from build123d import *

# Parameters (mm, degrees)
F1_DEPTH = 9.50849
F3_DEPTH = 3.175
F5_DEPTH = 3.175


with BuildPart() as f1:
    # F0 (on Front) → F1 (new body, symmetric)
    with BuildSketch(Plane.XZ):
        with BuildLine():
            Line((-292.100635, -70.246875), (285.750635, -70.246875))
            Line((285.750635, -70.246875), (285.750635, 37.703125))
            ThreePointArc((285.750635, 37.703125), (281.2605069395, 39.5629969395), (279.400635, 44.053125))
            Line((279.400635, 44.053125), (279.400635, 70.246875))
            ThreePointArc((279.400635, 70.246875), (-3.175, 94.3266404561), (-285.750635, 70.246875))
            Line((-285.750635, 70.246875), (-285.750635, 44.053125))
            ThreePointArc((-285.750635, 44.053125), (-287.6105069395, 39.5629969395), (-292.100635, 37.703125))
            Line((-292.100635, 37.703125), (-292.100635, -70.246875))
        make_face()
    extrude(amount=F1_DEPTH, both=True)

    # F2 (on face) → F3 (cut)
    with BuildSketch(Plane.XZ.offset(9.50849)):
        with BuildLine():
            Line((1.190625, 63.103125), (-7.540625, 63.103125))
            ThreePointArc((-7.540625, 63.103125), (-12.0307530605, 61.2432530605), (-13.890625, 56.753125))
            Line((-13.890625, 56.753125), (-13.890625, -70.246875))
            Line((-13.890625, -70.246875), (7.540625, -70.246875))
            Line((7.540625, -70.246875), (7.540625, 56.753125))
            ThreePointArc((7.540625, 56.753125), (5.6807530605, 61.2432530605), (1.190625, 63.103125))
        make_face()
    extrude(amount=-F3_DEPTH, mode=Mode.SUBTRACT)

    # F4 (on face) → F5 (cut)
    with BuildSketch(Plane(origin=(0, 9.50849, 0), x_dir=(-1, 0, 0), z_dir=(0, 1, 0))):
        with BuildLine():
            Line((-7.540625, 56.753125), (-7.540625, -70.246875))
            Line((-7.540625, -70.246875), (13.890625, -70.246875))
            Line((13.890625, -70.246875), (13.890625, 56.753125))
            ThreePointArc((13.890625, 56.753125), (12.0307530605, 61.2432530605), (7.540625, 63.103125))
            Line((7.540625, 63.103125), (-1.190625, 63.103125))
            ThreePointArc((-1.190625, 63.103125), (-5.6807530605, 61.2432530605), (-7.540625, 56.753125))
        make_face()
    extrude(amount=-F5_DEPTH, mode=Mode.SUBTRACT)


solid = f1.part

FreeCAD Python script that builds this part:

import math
import FreeCAD as App
import Part
import Sketcher
Q = App.Units.Quantity

doc = App.newDocument("Part")
body = doc.addObject("PartDesign::Body", "Body")

sketch1 = body.newObject("Sketcher::SketchObject", "Sketch")
sketch1.AttachmentSupport = (doc.getObject("XZ_Plane"), [""])
sketch1.MapMode = "FlatFace"
sketch1.addGeometry(Part.LineSegment(App.Vector(-292.100635, -70.246875, 0), App.Vector(285.750635, -70.246875, 0)), False)
sketch1.addGeometry(Part.LineSegment(App.Vector(285.750635, -70.246875, 0), App.Vector(285.750635, 37.703125, 0)), False)
sketch1.addGeometry(Part.ArcOfCircle(Part.Circle(App.Vector(285.750635, 44.053125, 0), App.Vector(0, 0, 1), 6.35), math.radians(180), math.radians(270)), False)
sketch1.addGeometry(Part.LineSegment(App.Vector(279.400635, 44.053125, 0), App.Vector(279.400635, 70.246875, 0)), False)
sketch1.addGeometry(Part.ArcOfCircle(Part.Circle(App.Vector(-3.175, -1575.72336, 0), App.Vector(0, 0, 1), 1670.05), math.radians(80.258581), math.radians(99.741419)), False)
sketch1.addGeometry(Part.LineSegment(App.Vector(-285.750635, 70.246875, 0), App.Vector(-285.750635, 44.053125, 0)), False)
sketch1.addGeometry(Part.ArcOfCircle(Part.Circle(App.Vector(-292.100635, 44.053125, 0), App.Vector(0, 0, 1), 6.35), math.radians(-90), math.radians(0)), False)
sketch1.addGeometry(Part.LineSegment(App.Vector(-292.100635, 37.703125, 0), App.Vector(-292.100635, -70.246875, 0)), False)
sketch1.addConstraint(Sketcher.Constraint("Coincident", 0, 2, 1, 1))
sketch1.addConstraint(Sketcher.Constraint("Coincident", 1, 2, 2, 2))
sketch1.addConstraint(Sketcher.Constraint("Tangent", 2, 1, 3, 1))
sketch1.addConstraint(Sketcher.Constraint("Coincident", 3, 2, 4, 1))
sketch1.addConstraint(Sketcher.Constraint("Coincident", 4, 2, 5, 1))
sketch1.addConstraint(Sketcher.Constraint("Tangent", 5, 2, 6, 2))
sketch1.addConstraint(Sketcher.Constraint("Coincident", 6, 1, 7, 1))
sketch1.addConstraint(Sketcher.Constraint("Coincident", 7, 2, 0, 1))
sketch1.addConstraint(Sketcher.Constraint("Horizontal", 0))
sketch1.addConstraint(Sketcher.Constraint("Vertical", 1))
sketch1.addConstraint(Sketcher.Constraint("Vertical", 3))
sketch1.addConstraint(Sketcher.Constraint("Vertical", 5))
sketch1.addConstraint(Sketcher.Constraint("Vertical", 7))
sketch1.addConstraint(Sketcher.Constraint("Equal", 2, 6))
sketch1.addConstraint(Sketcher.Constraint("Horizontal", 2, 3, 6, 3))
sketch1.addConstraint(Sketcher.Constraint("Vertical", 2, 3, 0, 2))
sketch1.addConstraint(Sketcher.Constraint("Equal", 3, 5))
sketch1.addConstraint(Sketcher.Constraint("Radius", 2, Q("0.25 in")))
sketch1.addConstraint(Sketcher.Constraint("Radius", 4, Q("65.75 in")))
sketch1.addConstraint(Sketcher.Constraint("DistanceY", 1, 1, 1, 2, Q("4.25 in")))
sketch1.addConstraint(Sketcher.Constraint("DistanceY", 3, 1, 3, 2, Q("1.03125 in")))
sketch1.addConstraint(Sketcher.Constraint("DistanceX", 6, 1, 5, 2, Q("0.25 in")))
sketch1.addConstraint(Sketcher.Constraint("DistanceY", -1, 1, 2, 3, Q("1.734375 in")))
sketch1.addConstraint(Sketcher.Constraint("DistanceX", 4, 3, -1, 1, Q("0.125 in")))
sketch1.addConstraint(Sketcher.Constraint("DistanceX", 0, 1, 0, 2, 577.85127))
pad1 = body.newObject("PartDesign::Pad", "Pad")
pad1.Profile = sketch1
pad1.Length = Q("0.7487 in")
pad1.Midplane = True

sketch2 = body.newObject("Sketcher::SketchObject", "Sketch001")
sketch2.AttachmentSupport = (doc.getObject("XZ_Plane"), [""])
sketch2.MapMode = "FlatFace"
sketch2.AttachmentOffset = App.Placement(App.Vector(0, 0, 9.50849), App.Rotation())
sketch2.addGeometry(Part.LineSegment(App.Vector(1.190625, 63.103125, 0), App.Vector(-7.540625, 63.103125, 0)), False)
sketch2.addGeometry(Part.ArcOfCircle(Part.Circle(App.Vector(-7.540625, 56.753125, 0), App.Vector(0, 0, 1), 6.35), math.radians(90), math.radians(180)), False)
sketch2.addGeometry(Part.LineSegment(App.Vector(-13.890625, 56.753125, 0), App.Vector(-13.890625, -70.246875, 0)), False)
sketch2.addGeometry(Part.LineSegment(App.Vector(-13.890625, -70.246875, 0), App.Vector(7.540625, -70.246875, 0)), False)
sketch2.addGeometry(Part.LineSegment(App.Vector(7.540625, -70.246875, 0), App.Vector(7.540625, 56.753125, 0)), False)
sketch2.addGeometry(Part.ArcOfCircle(Part.Circle(App.Vector(1.190625, 56.753125, 0), App.Vector(0, 0, 1), 6.35), math.radians(0), math.radians(90)), False)
sketch2.addConstraint(Sketcher.Constraint("Tangent", 0, 2, 1, 1))
sketch2.addConstraint(Sketcher.Constraint("Tangent", 1, 2, 2, 1))
sketch2.addConstraint(Sketcher.Constraint("Coincident", 2, 2, 3, 1))
sketch2.addConstraint(Sketcher.Constraint("Coincident", 3, 2, 4, 1))
sketch2.addConstraint(Sketcher.Constraint("Tangent", 4, 2, 5, 1))
sketch2.addConstraint(Sketcher.Constraint("Tangent", 5, 2, 0, 1))
sketch2.addConstraint(Sketcher.Constraint("Horizontal", 0))
sketch2.addConstraint(Sketcher.Constraint("Vertical", 2))
sketch2.addConstraint(Sketcher.Constraint("Horizontal", 3))
sketch2.addConstraint(Sketcher.Constraint("Vertical", 4))
sketch2.addConstraint(Sketcher.Constraint("Equal", 1, 5))
sketch2.addConstraint(Sketcher.Constraint("DistanceY", 2, 2, 2, 1, Q("5 in")))
sketch2.addConstraint(Sketcher.Constraint("Radius", 1, Q("0.25 in")))
sketch2.addConstraint(Sketcher.Constraint("DistanceX", 0, 2, 0, 1, Q("0.34375 in")))
sketch2.addConstraint(Sketcher.Constraint("DistanceX", 1, 3, -1, 1, Q("0.296875 in")))
sketch2.addConstraint(Sketcher.Constraint("DistanceY", -1, 1, 1, 3, Q("2.234375 in")))
pocket1 = body.newObject("PartDesign::Pocket", "Pocket")
pocket1.Profile = sketch2
pocket1.Length = Q("0.125 in")

sketch3 = body.newObject("Sketcher::SketchObject", "Sketch002")
sketch3.AttachmentSupport = (doc.getObject("XZ_Plane"), [""])
sketch3.MapMode = "FlatFace"
sketch3.AttachmentOffset = App.Placement(App.Vector(0, 0, -9.50849), App.Rotation())
sketch3.addGeometry(Part.LineSegment(App.Vector(7.540625, 56.753125, 0), App.Vector(7.540625, -70.246875, 0)), False)
sketch3.addGeometry(Part.LineSegment(App.Vector(7.540625, -70.246875, 0), App.Vector(-13.890625, -70.246875, 0)), False)
sketch3.addGeometry(Part.LineSegment(App.Vector(-13.890625, -70.246875, 0), App.Vector(-13.890625, 56.753125, 0)), False)
sketch3.addGeometry(Part.ArcOfCircle(Part.Circle(App.Vector(-7.540625, 56.753125, 0), App.Vector(0, 0, 1), 6.35), math.radians(90), math.radians(180)), False)
sketch3.addGeometry(Part.LineSegment(App.Vector(-7.540625, 63.103125, 0), App.Vector(1.190625, 63.103125, 0)), False)
sketch3.addGeometry(Part.ArcOfCircle(Part.Circle(App.Vector(1.190625, 56.753125, 0), App.Vector(0, 0, 1), 6.35), math.radians(0), math.radians(90)), False)
sketch3.addConstraint(Sketcher.Constraint("Coincident", 0, 2, 1, 1))
sketch3.addConstraint(Sketcher.Constraint("Coincident", 1, 2, 2, 1))
sketch3.addConstraint(Sketcher.Constraint("Tangent", 2, 2, 3, 2))
sketch3.addConstraint(Sketcher.Constraint("Tangent", 3, 1, 4, 1))
sketch3.addConstraint(Sketcher.Constraint("Tangent", 4, 2, 5, 2))
sketch3.addConstraint(Sketcher.Constraint("Tangent", 5, 1, 0, 1))
sketch3.addConstraint(Sketcher.Constraint("Vertical", 0))
sketch3.addConstraint(Sketcher.Constraint("Horizontal", 1))
sketch3.addConstraint(Sketcher.Constraint("Vertical", 2))
sketch3.addConstraint(Sketcher.Constraint("Horizontal", 4))
sketch3.addConstraint(Sketcher.Constraint("Equal", 3, 5))
sketch3.addConstraint(Sketcher.Constraint("DistanceY", 0, 2, 0, 1, Q("5 in")))
sketch3.addConstraint(Sketcher.Constraint("Radius", 3, Q("0.25 in")))
sketch3.addConstraint(Sketcher.Constraint("DistanceX", 1, 2, 1, 1, Q("0.84375 in")))
sketch3.addConstraint(Sketcher.Constraint("DistanceX", 3, 3, -1, 1, Q("0.296875 in")))
sketch3.addConstraint(Sketcher.Constraint("DistanceY", -1, 1, 3, 3, Q("2.234375 in")))
pocket2 = body.newObject("PartDesign::Pocket", "Pocket001")
pocket2.Profile = sketch3
pocket2.Length = Q("0.125 in")
pocket2.Reversed = True

doc.recompute()
